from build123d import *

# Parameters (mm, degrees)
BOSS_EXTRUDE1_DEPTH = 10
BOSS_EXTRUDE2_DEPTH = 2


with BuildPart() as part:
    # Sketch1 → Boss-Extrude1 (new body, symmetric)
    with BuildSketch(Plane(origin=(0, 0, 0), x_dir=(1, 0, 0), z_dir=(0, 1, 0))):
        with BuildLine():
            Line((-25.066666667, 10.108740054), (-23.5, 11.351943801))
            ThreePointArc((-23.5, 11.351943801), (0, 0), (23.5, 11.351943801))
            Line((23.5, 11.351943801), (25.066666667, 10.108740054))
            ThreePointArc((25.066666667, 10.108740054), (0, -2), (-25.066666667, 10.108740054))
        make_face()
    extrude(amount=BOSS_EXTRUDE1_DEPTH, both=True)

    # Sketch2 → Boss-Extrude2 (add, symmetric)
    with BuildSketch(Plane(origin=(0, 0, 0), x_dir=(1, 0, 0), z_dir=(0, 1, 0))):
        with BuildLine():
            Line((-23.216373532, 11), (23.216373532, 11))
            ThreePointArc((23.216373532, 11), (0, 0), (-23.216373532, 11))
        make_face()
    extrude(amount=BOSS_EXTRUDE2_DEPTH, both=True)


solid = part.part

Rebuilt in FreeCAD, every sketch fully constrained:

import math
import FreeCAD as App
import Part
import Sketcher
from FreeCAD import Vector
Q = App.Units.Quantity

doc = App.newDocument("Part")
body = doc.addObject("PartDesign::Body", "Body")

# Sketch on XZ plane
sketch1 = doc.addObject("Sketcher::SketchObject", "Sketch")
body.addObject(sketch1)
sketch1.AttachmentSupport = (doc.XZ_Plane, [""])
sketch1.MapMode = "FlatFace"
sketch1.addGeometry(Part.LineSegment(Vector(-23.5, -11.4, 0), Vector(-25.1, -10.1, 0)), False)
sketch1.addGeometry(Part.ArcOfCircle(Part.Circle(Vector(0, -30, 0), Vector(0, 0, 1), 32), math.radians(38), math.radians(142)), False)
sketch1.addGeometry(Part.LineSegment(Vector(25.1, -10.1, 0), Vector(23.5, -11.4, 0)), False)
sketch1.addGeometry(Part.ArcOfCircle(Part.Circle(Vector(0, -30, 0), Vector(0, 0, 1), 30), math.radians(38), math.radians(142)), False)
sketch1.addConstraint(Sketcher.Constraint("Coincident", 0, 2, 1, 2))
sketch1.addConstraint(Sketcher.Constraint("Coincident", 1, 1, 2, 1))
sketch1.addConstraint(Sketcher.Constraint("Coincident", 2, 2, 3, 1))
sketch1.addConstraint(Sketcher.Constraint("Coincident", 3, 2, 0, 1))
sketch1.addConstraint(Sketcher.Constraint("Coincident", 3, 3, 1, 3))
sketch1.addConstraint(Sketcher.Constraint("Symmetric", 0, 2, 1, 1, -2))
sketch1.addConstraint(Sketcher.Constraint("Horizontal", 2, 2, 3, 2))
sketch1.addConstraint(Sketcher.Constraint("Radius", 1, Q("32 mm")))
sketch1.addConstraint(Sketcher.Constraint("Radius", 3, Q("30 mm")))
sketch1.addConstraint(Sketcher.Constraint("DistanceY", 1, 3, -1, 1, Q("30 mm")))
sketch1.addConstraint(Sketcher.Constraint("DistanceX", 3, 2, 2, 2, Q("47 mm")))
sketch1.addConstraint(Sketcher.Constraint("DistanceY", 0, 2, -1, 1, Q("10.10874 mm")))
pad1 = doc.addObject("PartDesign::Pad", "Pad")
body.addObject(pad1)
pad1.Profile = sketch1
pad1.Length = 20
pad1.Midplane = True

# Sketch on XZ plane
sketch2 = doc.addObject("Sketcher::SketchObject", "Sketch001")
body.addObject(sketch2)
sketch2.AttachmentSupport = (doc.XZ_Plane, [""])
sketch2.MapMode = "FlatFace"
sketch2.addGeometry(Part.LineSegment(Vector(23, -11, 0), Vector(-23, -11, 0)), False)
sketch2.addGeometry(Part.ArcOfCircle(Part.Circle(Vector(0, -30, 0), Vector(0, 0, 1), 30), math.radians(39), math.radians(141)), False)
sketch2.addConstraint(Sketcher.Constraint("Coincident", 0, 1, 1, 1))
sketch2.addConstraint(Sketcher.Constraint("Coincident", 1, 2, 0, 2))
sketch2.addConstraint(Sketcher.Constraint("Horizontal", 0))
sketch2.addConstraint(Sketcher.Constraint("PointOnObject", 1, 3, -2))
sketch2.addConstraint(Sketcher.Constraint("Radius", 1, Q("30 mm")))
sketch2.addConstraint(Sketcher.Constraint("DistanceY", 1, 3, -1, 1, Q("30 mm")))
sketch2.addConstraint(Sketcher.Constraint("DistanceY", 0, 1, -1, 1, Q("11 mm")))
pad2 = doc.addObject("PartDesign::Pad", "Pad001")
body.addObject(pad2)
pad2.Profile = sketch2
pad2.Length = 4
pad2.Midplane = True

doc.recompute()
